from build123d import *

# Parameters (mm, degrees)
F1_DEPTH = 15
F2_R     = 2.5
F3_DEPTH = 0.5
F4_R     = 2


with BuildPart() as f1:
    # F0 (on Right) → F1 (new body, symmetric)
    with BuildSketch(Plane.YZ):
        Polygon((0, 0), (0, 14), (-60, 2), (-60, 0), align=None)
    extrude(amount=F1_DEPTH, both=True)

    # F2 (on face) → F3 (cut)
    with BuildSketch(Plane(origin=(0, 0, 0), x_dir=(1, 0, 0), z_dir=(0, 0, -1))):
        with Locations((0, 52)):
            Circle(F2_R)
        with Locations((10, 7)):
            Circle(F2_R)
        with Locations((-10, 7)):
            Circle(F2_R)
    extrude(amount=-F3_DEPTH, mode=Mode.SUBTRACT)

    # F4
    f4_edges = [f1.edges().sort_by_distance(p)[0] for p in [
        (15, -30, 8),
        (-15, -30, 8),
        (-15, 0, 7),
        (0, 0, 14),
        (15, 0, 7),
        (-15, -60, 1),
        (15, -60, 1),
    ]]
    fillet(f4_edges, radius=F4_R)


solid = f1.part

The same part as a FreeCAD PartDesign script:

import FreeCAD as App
import Part
import Sketcher
Q = App.Units.Quantity


def edges_at(feature, points):
    """Names of the edges that pass closest to the given points."""
    edges = feature.Shape.Edges
    near = lambda p: min(range(len(edges)), key=lambda i: edges[i].distToShape(Part.Vertex(*p))[0])
    return sorted({f"Edge{near(p) + 1}" for p in points})

doc = App.newDocument("Part")
body = doc.addObject("PartDesign::Body", "Body")

sketch1 = body.newObject("Sketcher::SketchObject", "Sketch")
sketch1.AttachmentSupport = (doc.getObject("YZ_Plane"), [""])
sketch1.MapMode = "FlatFace"
sketch1.addGeometry([
    Part.LineSegment(App.Vector(0, 0, 0), App.Vector(0, 14, 0)),
    Part.LineSegment(App.Vector(0, 14, 0), App.Vector(-60, 2, 0)),
    Part.LineSegment(App.Vector(-60, 2, 0), App.Vector(-60, 0, 0)),
    Part.LineSegment(App.Vector(-60, 0, 0), App.Vector(0, 0, 0)),
], False)
sketch1.addConstraint([
    Sketcher.Constraint("Coincident", 0, 2, 1, 1),
    Sketcher.Constraint("Coincident", 1, 2, 2, 1),
    Sketcher.Constraint("Coincident", 2, 2, 3, 1),
    Sketcher.Constraint("Coincident", 3, 2, 0, 1),
    Sketcher.Constraint("Vertical", 0),
    Sketcher.Constraint("Vertical", 2),
    Sketcher.Constraint("Horizontal", 3),
    Sketcher.Constraint("Coincident", 3, 2, -1, 1),
    Sketcher.Constraint("DistanceX", 3, 1, 3, 2, Q("60 mm")),
    Sketcher.Constraint("DistanceY", 0, 1, 0, 2, Q("14 mm")),
    Sketcher.Constraint("DistanceY", 2, 2, 2, 1, Q("2 mm")),
])
pad1 = body.newObject("PartDesign::Pad", "Pad")
pad1.Profile = sketch1
pad1.Length = 30
pad1.Midplane = True

sketch2 = body.newObject("Sketcher::SketchObject", "Sketch001")
sketch2.AttachmentSupport = (doc.getObject("XY_Plane"), [""])
sketch2.MapMode = "FlatFace"
sketch2.addGeometry([
    Part.Circle(App.Vector(0, -52, 0), App.Vector(0, 0, 1), 2.5),
    Part.Circle(App.Vector(10, -7, 0), App.Vector(0, 0, 1), 2.5),
    Part.Circle(App.Vector(-10, -7, 0), App.Vector(0, 0, 1), 2.5),
], False)
sketch2.addConstraint([
    Sketcher.Constraint("Equal", 0, 1),
    Sketcher.Constraint("Equal", 1, 2),
    Sketcher.Constraint("Symmetric", 1, 3, 2, 3, -2),
    Sketcher.Constraint("PointOnObject", 0, 3, -2),
    Sketcher.Constraint("Diameter", 0, Q("5 mm")),
    Sketcher.Constraint("DistanceY", 0, 3, -1, 1, Q("52 mm")),
    Sketcher.Constraint("DistanceX", -1, 1, 1, 3, Q("10 mm")),
    Sketcher.Constraint("DistanceY", 1, 3, -1, 1, Q("7 mm")),
])
pocket1 = body.newObject("PartDesign::Pocket", "Pocket")
pocket1.Profile = sketch2
pocket1.Length = 0.5
pocket1.Reversed = True
doc.recompute()

fillet = body.newObject("PartDesign::Fillet", "Fillet")
fillet.Base = (pocket1, edges_at(pocket1, [
    (15, -30, 8),
    (-15, -30, 8),
    (-15, 0, 7),
    (0, 0, 14),
    (15, 0, 7),
    (-15, -60, 1),
    (15, -60, 1),
]))
fillet.Radius = 2

doc.recompute()
